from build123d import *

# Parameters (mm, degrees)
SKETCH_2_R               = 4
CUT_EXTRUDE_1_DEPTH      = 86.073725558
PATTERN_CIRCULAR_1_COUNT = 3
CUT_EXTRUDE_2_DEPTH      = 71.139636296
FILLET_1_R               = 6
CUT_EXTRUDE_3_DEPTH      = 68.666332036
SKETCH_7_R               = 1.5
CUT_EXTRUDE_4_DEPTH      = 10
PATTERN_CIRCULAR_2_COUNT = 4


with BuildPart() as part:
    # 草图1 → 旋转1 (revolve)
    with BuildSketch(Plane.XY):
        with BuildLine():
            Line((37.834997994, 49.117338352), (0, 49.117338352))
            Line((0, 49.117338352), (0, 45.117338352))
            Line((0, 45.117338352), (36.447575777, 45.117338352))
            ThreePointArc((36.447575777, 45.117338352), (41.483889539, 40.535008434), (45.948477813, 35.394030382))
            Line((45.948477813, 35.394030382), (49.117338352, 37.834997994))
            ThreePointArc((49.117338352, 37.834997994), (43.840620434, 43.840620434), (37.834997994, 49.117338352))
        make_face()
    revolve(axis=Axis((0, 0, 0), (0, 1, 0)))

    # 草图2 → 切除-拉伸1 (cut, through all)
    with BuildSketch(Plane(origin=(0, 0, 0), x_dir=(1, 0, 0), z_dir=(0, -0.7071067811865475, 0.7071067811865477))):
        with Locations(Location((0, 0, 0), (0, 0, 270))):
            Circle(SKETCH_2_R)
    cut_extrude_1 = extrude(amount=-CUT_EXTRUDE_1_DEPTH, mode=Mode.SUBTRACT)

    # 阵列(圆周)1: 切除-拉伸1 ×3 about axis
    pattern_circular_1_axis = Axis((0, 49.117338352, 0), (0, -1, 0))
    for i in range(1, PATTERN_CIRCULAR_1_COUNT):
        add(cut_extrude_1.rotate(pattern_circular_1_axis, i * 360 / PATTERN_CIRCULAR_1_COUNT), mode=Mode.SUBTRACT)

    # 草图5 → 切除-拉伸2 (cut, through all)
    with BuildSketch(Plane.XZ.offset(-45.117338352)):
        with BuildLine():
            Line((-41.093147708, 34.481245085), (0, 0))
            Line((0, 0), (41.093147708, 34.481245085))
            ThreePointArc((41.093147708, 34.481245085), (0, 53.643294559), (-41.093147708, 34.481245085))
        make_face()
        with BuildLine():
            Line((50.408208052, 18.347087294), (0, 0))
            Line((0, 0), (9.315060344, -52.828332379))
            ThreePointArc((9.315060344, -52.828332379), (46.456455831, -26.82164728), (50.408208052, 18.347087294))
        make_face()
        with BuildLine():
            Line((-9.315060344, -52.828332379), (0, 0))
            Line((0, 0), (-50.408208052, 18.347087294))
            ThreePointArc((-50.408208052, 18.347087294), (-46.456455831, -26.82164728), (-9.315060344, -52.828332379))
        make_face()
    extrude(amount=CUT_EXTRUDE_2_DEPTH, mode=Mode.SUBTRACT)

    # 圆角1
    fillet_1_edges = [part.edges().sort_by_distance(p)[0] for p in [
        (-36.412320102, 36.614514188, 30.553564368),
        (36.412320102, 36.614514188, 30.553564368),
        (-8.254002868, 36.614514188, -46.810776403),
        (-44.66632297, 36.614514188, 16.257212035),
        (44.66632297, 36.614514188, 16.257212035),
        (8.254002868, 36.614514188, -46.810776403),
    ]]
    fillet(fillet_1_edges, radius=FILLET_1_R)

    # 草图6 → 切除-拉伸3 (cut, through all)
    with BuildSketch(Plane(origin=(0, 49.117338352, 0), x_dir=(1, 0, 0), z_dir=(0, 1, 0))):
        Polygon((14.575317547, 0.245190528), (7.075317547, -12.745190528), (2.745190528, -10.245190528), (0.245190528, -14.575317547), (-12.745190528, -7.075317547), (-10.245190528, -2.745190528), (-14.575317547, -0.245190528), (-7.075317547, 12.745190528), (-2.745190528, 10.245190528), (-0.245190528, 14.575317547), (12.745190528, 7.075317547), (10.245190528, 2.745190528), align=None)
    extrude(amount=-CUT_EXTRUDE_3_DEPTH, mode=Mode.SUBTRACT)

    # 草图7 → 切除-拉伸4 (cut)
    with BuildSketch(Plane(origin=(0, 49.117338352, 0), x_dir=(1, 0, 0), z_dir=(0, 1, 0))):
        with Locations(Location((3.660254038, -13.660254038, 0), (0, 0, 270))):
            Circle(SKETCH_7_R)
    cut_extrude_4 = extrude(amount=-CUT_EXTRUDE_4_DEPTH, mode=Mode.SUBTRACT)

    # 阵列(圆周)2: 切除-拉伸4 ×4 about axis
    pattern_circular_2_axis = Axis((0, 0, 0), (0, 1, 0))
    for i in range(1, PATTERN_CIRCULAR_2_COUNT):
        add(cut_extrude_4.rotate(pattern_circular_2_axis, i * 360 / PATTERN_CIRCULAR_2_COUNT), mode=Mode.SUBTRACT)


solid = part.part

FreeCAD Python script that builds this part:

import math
import FreeCAD as App
import Part
import Sketcher

V = App.Vector
Q = App.Units.Quantity


def edges_at(feature, points):
    """Names of the edges that pass closest to the given points."""
    edges = feature.Shape.Edges
    near = lambda p: min(range(len(edges)), key=lambda i: edges[i].distToShape(Part.Vertex(*p))[0])
    return sorted({f"Edge{near(p) + 1}" for p in points})


def add_polygon(sketch, points):
    """Adds a closed chain of lines whose ends are joined by coincident constraints."""
    first, n = sketch.GeometryCount, len(points)
    for a, b in zip(points, points[1:] + points[:1]):
        sketch.addGeometry(Part.LineSegment(App.Vector(*a, 0), App.Vector(*b, 0)), False)
    for i in range(n):
        sketch.addConstraint(Sketcher.Constraint("Coincident", first + i, 2, first + (i + 1) % n, 1))

doc = App.newDocument("Part")
params = doc.addObject("Spreadsheet::Sheet", "Params")
for row, (alias, value) in enumerate([
    ("sketch1_radius", "58 mm"),
    ("sketch1_radius2", "62 mm"),
    ("sketch1_height", "4 mm"),
    ("revolution_angle", "360 deg"),
    ("sketch2_diameter", "8 mm"),
    ("fillet_radius", "6 mm"),
    ("sketch4_length", "15 mm"),
    ("sketch4_length2", "5 mm"),
    ("sketch5_diameter", "3 mm"),
    ("pocket4_length", "10 mm"),
], start=1):
    params.set(f"A{row}", alias)
    params.set(f"B{row}", "=" + value)
    params.setAlias(f"B{row}", alias)

body = doc.addObject("PartDesign::Body", "Body")

# Sketch on XY plane
sketch1 = body.newObject("Sketcher::SketchObject", "Sketch")
sketch1.AttachmentSupport = (doc.getObject("XY_Plane"), [""])
sketch1.MapMode = "FlatFace"
sketch1.addGeometry(Part.LineSegment(V(37.8, 49.1, 0), V(0, 49.1, 0)), False)
sketch1.addGeometry(Part.LineSegment(V(0, 49.1, 0), V(0, 45.1, 0)), False)
sketch1.addGeometry(Part.LineSegment(V(0, 45.1, 0), V(36.4, 45.1, 0)), False)
sketch1.addGeometry(Part.ArcOfCircle(Part.Circle(V(0, 0, 0), V(0, 0, 1), 58), math.radians(37.61), math.radians(51.07)), False)
sketch1.addGeometry(Part.LineSegment(V(45.9, 35.4, 0), V(49.1, 37.8, 0)), False)
sketch1.addGeometry(Part.ArcOfCircle(Part.Circle(V(0, 0, 0), V(0, 0, 1), 62), math.radians(37.61), math.radians(52.39)), False)
sketch1.addConstraint(Sketcher.Constraint("Coincident", 0, 2, 1, 1))
sketch1.addConstraint(Sketcher.Constraint("Coincident", 1, 2, 2, 1))
sketch1.addConstraint(Sketcher.Constraint("Coincident", 2, 2, 3, 2))
sketch1.addConstraint(Sketcher.Constraint("Coincident", 3, 1, 4, 1))
sketch1.addConstraint(Sketcher.Constraint("Coincident", 4, 2, 5, 1))
sketch1.addConstraint(Sketcher.Constraint("Coincident", 5, 2, 0, 1))
sketch1.addConstraint(Sketcher.Constraint("Horizontal", 0))
sketch1.addConstraint(Sketcher.Constraint("Vertical", 1))
sketch1.addConstraint(Sketcher.Constraint("Horizontal", 2))
sketch1.addConstraint(Sketcher.Constraint("Coincident", 3, 3, -1, 1))
sketch1.addConstraint(Sketcher.Constraint("Coincident", 5, 3, -1, 1))
sketch1.addConstraint(Sketcher.Constraint("PointOnObject", 0, 2, -2))
sketch1.addConstraint(Sketcher.Constraint("Radius", 3, Q("58 mm")))
sketch1.addConstraint(Sketcher.Constraint("Radius", 5, Q("62 mm")))
sketch1.addConstraint(Sketcher.Constraint("DistanceY", 1, 2, 1, 1, Q("4 mm")))
sketch1.addConstraint(Sketcher.Constraint("DistanceX", 0, 2, 0, 1, Q("37.834998 mm")))
sketch1.addConstraint(Sketcher.Constraint("DistanceY", -1, 1, 3, 1, Q("35.39403 mm")))
sketch1.addConstraint(Sketcher.Constraint("DistanceX", -1, 1, 4, 2, Q("49.117338 mm")))
sketch1.setExpression("Constraints[12]", "Params.sketch1_radius")
sketch1.setExpression("Constraints[13]", "Params.sketch1_radius2")
sketch1.setExpression("Constraints[14]", "Params.sketch1_height")
revolution = body.newObject("PartDesign::Revolution", "Revolution")
revolution.Profile = sketch1
revolution.ReferenceAxis = (sketch1, ["V_Axis"])
revolution.setExpression("Angle", "Params.revolution_angle")

# Sketch on an angled plane
sketch2 = body.newObject("Sketcher::SketchObject", "Sketch001")
sketch2.Placement = App.Placement(V(0, 0, 0), App.Rotation(V(1, 0, 0), V(0, 0.707106781, 0.707106781), V(0, -0.707106781, 0.707106781), "ZXY"))
sketch2.addGeometry(Part.Circle(V(0, 0, 0), V(0, 0, 1), 4), False)
sketch2.addConstraint(Sketcher.Constraint("Coincident", 0, 3, -1, 1))
sketch2.addConstraint(Sketcher.Constraint("Diameter", 0, Q("8 mm")))
sketch2.setExpression("Constraints[1]", "Params.sketch2_diameter")
pocket1 = body.newObject("PartDesign::Pocket", "Pocket")
pocket1.Profile = sketch2
pocket1.Type = "ThroughAll"
doc.recompute()

polarpattern = body.newObject("PartDesign::PolarPattern", "PolarPattern")
polarpattern.Originals = [pocket1]
polarpattern.Axis = (doc.getObject("Y_Axis"), [""])
polarpattern.Angle = 360
polarpattern.Occurrences = 3
body.Tip = polarpattern

# Sketch on XZ plane
sketch3 = body.newObject("Sketcher::SketchObject", "Sketch002")
sketch3.AttachmentSupport = (doc.getObject("XZ_Plane"), [""])
sketch3.MapMode = "FlatFace"
sketch3.AttachmentOffset = App.Placement(V(0, 0, -45.117338), App.Rotation())
sketch3.addGeometry(Part.LineSegment(V(-41, 34, 0), V(0, 0, 0)), False)
sketch3.addGeometry(Part.LineSegment(V(0, 0, 0), V(41, 34, 0)), False)
sketch3.addGeometry(Part.ArcOfCircle(Part.Circle(V(0, 0, 0), V(0, 0, 1), 54), math.radians(40), math.radians(140)), False)
sketch3.addGeometry(Part.LineSegment(V(50, 18, 0), V(0, 0, 0)), False)
sketch3.addGeometry(Part.LineSegment(V(0, 0, 0), V(9, -53, 0)), False)
sketch3.addGeometry(Part.ArcOfCircle(Part.Circle(V(0, 0, 0), V(0, 0, 1), 54), math.radians(-80), math.radians(20)), False)
sketch3.addGeometry(Part.LineSegment(V(-9, -53, 0), V(0, 0, 0)), False)
sketch3.addGeometry(Part.LineSegment(V(0, 0, 0), V(-50, 18, 0)), False)
sketch3.addGeometry(Part.ArcOfCircle(Part.Circle(V(0, 0, 0), V(0, 0, 1), 54), math.radians(160), math.radians(260)), False)
sketch3.addConstraint(Sketcher.Constraint("Coincident", 0, 2, 1, 1))
sketch3.addConstraint(Sketcher.Constraint("Coincident", 1, 2, 2, 1))
sketch3.addConstraint(Sketcher.Constraint("Coincident", 2, 2, 0, 1))
sketch3.addConstraint(Sketcher.Constraint("Coincident", 3, 2, 4, 1))
sketch3.addConstraint(Sketcher.Constraint("Coincident", 4, 2, 5, 1))
sketch3.addConstraint(Sketcher.Constraint("Coincident", 5, 2, 3, 1))
sketch3.addConstraint(Sketcher.Constraint("Coincident", 6, 2, 7, 1))
sketch3.addConstraint(Sketcher.Constraint("Coincident", 7, 2, 8, 1))
sketch3.addConstraint(Sketcher.Constraint("Coincident", 8, 2, 6, 1))
sketch3.addConstraint(Sketcher.Constraint("Coincident", 2, 3, -1, 1))
sketch3.addConstraint(Sketcher.Constraint("Coincident", 5, 3, -1, 1))
sketch3.addConstraint(Sketcher.Constraint("Coincident", 8, 3, -1, 1))
sketch3.addConstraint(Sketcher.Constraint("Coincident", 0, 2, -1, 1))
sketch3.addConstraint(Sketcher.Constraint("Coincident", 3, 2, -1, 1))
sketch3.addConstraint(Sketcher.Constraint("Coincident", 6, 2, -1, 1))
sketch3.addConstraint(Sketcher.Constraint("Equal", 2, 5))
sketch3.addConstraint(Sketcher.Constraint("Equal", 5, 8))
sketch3.addConstraint(Sketcher.Constraint("Horizontal", 1, 2, 2, 2))
sketch3.addConstraint(Sketcher.Constraint("Horizontal", 5, 2, 7, 2))
sketch3.addConstraint(Sketcher.Constraint("Horizontal", 4, 2, 8, 2))
sketch3.addConstraint(Sketcher.Constraint("Angle", 0, Q("-40 deg")))
sketch3.addConstraint(Sketcher.Constraint("Angle", 3, Q("-160 deg")))
sketch3.addConstraint(Sketcher.Constraint("Angle", 4, Q("-80 deg")))
sketch3.addConstraint(Sketcher.Constraint("Radius", 2, Q("53.643295 mm")))
pocket2 = body.newObject("PartDesign::Pocket", "Pocket001")
pocket2.Profile = sketch3
pocket2.Type = "ThroughAll"
pocket2.Reversed = True
doc.recompute()

fillet = body.newObject("PartDesign::Fillet", "Fillet")
fillet.Base = (pocket2, edges_at(pocket2, [
    (-36.412, 36.615, 30.554),
    (36.412, 36.615, 30.554),
    (-8.254, 36.615, -46.811),
    (-44.666, 36.615, 16.257),
    (44.666, 36.615, 16.257),
    (8.254, 36.615, -46.811),
]))
fillet.setExpression("Radius", "Params.fillet_radius")

# Sketch on XZ plane
sketch4 = body.newObject("Sketcher::SketchObject", "Sketch003")
sketch4.AttachmentSupport = (doc.getObject("XZ_Plane"), [""])
sketch4.MapMode = "FlatFace"
sketch4.AttachmentOffset = App.Placement(V(0, 0, -49.117338), App.Rotation())
add_polygon(sketch4, [(7, 13), (15, 0), (10, -3), (13, -7), (0, -15), (-3, -10), (-7, -13), (-15, 0), (-10, 3), (-13, 7), (0, 15), (3, 10)])  # lines 0-11
sketch4.addConstraint(Sketcher.Constraint("Symmetric", 0, 2, 6, 2, -1, 1))
sketch4.addConstraint(Sketcher.Constraint("Symmetric", 1, 2, 7, 2, -1, 1))
sketch4.addConstraint(Sketcher.Constraint("Symmetric", 2, 2, 8, 2, -1, 1))
sketch4.addConstraint(Sketcher.Constraint("Symmetric", 3, 2, 9, 2, -1, 1))
sketch4.addConstraint(Sketcher.Constraint("Symmetric", 4, 2, 10, 2, -1, 1))
sketch4.addConstraint(Sketcher.Constraint("Symmetric", 5, 2, 11, 2, -1, 1))
sketch4.addConstraint(Sketcher.Constraint("Perpendicular", 0, 1))
sketch4.addConstraint(Sketcher.Constraint("Perpendicular", 1, 2))
sketch4.addConstraint(Sketcher.Constraint("Perpendicular", 2, 3))
sketch4.addConstraint(Sketcher.Constraint("Perpendicular", 3, 4))
sketch4.addConstraint(Sketcher.Constraint("Perpendicular", 4, 5))
sketch4.addConstraint(Sketcher.Constraint("Equal", 1, 2))
sketch4.addConstraint(Sketcher.Constraint("Equal", 0, 3))
sketch4.addConstraint(Sketcher.Constraint("Equal", 2, 4))
sketch4.addConstraint(Sketcher.Constraint("Equal", 4, 5))
sketch4.addConstraint(Sketcher.Constraint("Angle", 0, Q("-60 deg")))
sketch4.addConstraint(Sketcher.Constraint("Distance", 0, Q("15 mm")))
sketch4.addConstraint(Sketcher.Constraint("Distance", 1, Q("5 mm")))
sketch4.setExpression("Constraints[28]", "Params.sketch4_length")
sketch4.setExpression("Constraints[29]", "Params.sketch4_length2")
pocket3 = body.newObject("PartDesign::Pocket", "Pocket002")
pocket3.Profile = sketch4
pocket3.Type = "ThroughAll"
pocket3.Reversed = True

# Sketch on XZ plane
sketch5 = body.newObject("Sketcher::SketchObject", "Sketch004")
sketch5.AttachmentSupport = (doc.getObject("XZ_Plane"), [""])
sketch5.MapMode = "FlatFace"
sketch5.AttachmentOffset = App.Placement(V(0, 0, -49.117338), App.Rotation())
sketch5.addGeometry(Part.Circle(V(3.7, 13.7, 0), V(0, 0, 1), 1.5), False)
sketch5.addConstraint(Sketcher.Constraint("Diameter", 0, Q("3 mm")))
sketch5.addConstraint(Sketcher.Constraint("DistanceX", -1, 1, 0, 3, Q("3.660254 mm")))
sketch5.addConstraint(Sketcher.Constraint("DistanceY", -1, 1, 0, 3, Q("13.660254 mm")))
sketch5.setExpression("Constraints[0]", "Params.sketch5_diameter")
pocket4 = body.newObject("PartDesign::Pocket", "Pocket003")
pocket4.Profile = sketch5
pocket4.setExpression("Length", "Params.pocket4_length")
pocket4.Reversed = True
doc.recompute()

polarpattern2 = body.newObject("PartDesign::PolarPattern", "PolarPattern001")
polarpattern2.Originals = [pocket4]
polarpattern2.Axis = (doc.getObject("Y_Axis"), [""])
polarpattern2.Angle = 360
polarpattern2.Occurrences = 4
body.Tip = polarpattern2

doc.recompute()
